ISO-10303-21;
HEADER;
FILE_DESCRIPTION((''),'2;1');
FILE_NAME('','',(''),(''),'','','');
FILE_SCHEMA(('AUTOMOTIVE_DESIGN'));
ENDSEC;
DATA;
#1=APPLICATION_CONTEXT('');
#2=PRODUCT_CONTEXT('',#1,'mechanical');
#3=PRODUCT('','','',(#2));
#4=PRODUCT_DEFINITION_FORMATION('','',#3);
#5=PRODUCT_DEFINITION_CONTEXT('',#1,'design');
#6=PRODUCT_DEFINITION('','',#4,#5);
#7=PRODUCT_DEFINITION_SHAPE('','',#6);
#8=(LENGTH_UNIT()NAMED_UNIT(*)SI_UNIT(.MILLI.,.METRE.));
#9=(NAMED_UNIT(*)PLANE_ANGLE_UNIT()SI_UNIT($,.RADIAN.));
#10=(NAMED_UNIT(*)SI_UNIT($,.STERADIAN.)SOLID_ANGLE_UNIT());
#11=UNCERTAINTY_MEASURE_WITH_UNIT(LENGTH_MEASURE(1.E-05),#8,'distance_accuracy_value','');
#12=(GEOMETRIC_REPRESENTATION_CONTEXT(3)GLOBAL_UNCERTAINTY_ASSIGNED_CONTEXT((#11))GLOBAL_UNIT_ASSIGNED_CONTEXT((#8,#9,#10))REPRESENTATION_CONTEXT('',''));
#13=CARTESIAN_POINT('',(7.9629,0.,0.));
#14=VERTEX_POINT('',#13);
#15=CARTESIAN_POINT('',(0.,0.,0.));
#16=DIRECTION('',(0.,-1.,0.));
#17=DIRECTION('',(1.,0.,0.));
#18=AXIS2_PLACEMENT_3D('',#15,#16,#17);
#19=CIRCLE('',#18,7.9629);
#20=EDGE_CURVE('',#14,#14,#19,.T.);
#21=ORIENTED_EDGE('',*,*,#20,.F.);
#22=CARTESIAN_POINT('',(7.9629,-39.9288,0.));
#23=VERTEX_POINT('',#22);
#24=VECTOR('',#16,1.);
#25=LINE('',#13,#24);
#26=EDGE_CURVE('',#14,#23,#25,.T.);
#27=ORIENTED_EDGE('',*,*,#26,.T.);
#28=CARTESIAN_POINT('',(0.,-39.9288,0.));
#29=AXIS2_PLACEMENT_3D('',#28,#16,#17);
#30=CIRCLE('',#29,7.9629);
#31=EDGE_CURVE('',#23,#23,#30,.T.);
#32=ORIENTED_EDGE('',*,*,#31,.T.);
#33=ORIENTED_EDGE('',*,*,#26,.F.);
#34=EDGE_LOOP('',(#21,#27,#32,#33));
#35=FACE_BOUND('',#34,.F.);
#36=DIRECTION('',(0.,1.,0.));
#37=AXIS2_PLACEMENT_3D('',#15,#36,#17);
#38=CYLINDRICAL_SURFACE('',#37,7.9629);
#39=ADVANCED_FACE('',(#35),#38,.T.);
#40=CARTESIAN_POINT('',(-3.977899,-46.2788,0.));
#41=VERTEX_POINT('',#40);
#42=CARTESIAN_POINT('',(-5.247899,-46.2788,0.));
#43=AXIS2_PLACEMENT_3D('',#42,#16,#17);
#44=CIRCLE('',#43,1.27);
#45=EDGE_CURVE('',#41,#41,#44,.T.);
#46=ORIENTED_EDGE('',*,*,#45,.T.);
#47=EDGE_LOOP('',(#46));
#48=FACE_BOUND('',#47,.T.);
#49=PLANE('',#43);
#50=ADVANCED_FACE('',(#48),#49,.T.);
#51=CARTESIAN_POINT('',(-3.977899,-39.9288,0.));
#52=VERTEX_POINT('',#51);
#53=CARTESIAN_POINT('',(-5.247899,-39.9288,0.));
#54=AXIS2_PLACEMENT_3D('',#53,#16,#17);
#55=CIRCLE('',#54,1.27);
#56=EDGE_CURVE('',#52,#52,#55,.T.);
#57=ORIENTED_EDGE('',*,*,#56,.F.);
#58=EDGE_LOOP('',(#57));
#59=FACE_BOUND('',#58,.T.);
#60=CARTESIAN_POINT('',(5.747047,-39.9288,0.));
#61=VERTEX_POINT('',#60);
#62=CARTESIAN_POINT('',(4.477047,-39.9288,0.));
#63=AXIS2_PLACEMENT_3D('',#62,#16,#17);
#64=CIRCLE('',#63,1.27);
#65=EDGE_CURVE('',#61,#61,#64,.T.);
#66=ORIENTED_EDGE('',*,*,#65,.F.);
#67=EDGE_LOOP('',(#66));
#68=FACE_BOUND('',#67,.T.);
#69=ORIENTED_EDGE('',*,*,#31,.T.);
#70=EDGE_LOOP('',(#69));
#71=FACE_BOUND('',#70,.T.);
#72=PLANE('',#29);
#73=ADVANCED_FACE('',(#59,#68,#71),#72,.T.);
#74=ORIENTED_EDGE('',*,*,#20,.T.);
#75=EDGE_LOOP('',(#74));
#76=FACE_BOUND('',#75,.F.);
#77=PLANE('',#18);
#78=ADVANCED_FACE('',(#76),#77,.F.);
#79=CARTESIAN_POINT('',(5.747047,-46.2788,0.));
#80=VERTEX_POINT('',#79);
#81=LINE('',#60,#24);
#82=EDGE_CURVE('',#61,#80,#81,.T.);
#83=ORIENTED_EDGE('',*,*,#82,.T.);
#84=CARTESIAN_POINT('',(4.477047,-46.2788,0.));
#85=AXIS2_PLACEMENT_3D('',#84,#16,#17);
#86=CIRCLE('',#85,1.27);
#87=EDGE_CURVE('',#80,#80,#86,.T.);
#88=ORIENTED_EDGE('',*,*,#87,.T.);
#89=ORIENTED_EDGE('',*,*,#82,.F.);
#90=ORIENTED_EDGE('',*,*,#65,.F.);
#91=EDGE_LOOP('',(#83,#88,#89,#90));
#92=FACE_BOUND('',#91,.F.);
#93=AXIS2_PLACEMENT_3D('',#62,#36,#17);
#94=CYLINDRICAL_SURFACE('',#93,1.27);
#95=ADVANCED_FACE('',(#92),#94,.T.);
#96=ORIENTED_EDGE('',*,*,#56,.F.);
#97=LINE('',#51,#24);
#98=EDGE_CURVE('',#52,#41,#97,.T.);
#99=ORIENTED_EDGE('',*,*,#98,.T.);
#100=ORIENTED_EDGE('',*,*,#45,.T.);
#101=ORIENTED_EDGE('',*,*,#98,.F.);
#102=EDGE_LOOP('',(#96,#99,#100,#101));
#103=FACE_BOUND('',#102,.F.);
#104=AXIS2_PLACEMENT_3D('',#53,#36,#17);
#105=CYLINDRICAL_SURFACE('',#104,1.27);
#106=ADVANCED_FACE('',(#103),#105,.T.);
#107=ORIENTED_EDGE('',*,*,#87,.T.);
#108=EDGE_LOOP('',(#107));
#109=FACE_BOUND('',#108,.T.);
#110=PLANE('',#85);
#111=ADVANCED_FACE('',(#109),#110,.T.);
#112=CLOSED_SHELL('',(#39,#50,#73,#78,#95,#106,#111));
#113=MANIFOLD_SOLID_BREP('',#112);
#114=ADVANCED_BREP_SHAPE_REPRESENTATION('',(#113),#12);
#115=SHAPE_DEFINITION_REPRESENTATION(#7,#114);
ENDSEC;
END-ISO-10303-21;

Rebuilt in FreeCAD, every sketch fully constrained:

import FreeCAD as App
import Part
import Sketcher
Q = App.Units.Quantity

doc = App.newDocument("Part")
body = doc.addObject("PartDesign::Body", "Body")

sketch1 = body.newObject("Sketcher::SketchObject", "Sketch")
sketch1.AttachmentSupport = (doc.getObject("XZ_Plane"), [""])
sketch1.MapMode = "FlatFace"
sketch1.addGeometry(Part.Circle(App.Vector(0, 0, 0), App.Vector(0, 0, 1), 8), False)
sketch1.addConstraint([
    Sketcher.Constraint("Coincident", 0, 3, -1, 1),
    Sketcher.Constraint("Diameter", 0, Q("0.627 in")),
])
pad1 = body.newObject("PartDesign::Pad", "Pad")
pad1.Profile = sketch1
pad1.Length = Q("1.572 in")

sketch2 = body.newObject("Sketcher::SketchObject", "Sketch001")
sketch2.AttachmentSupport = (doc.getObject("XZ_Plane"), [""])
sketch2.MapMode = "FlatFace"
sketch2.AttachmentOffset = App.Placement(App.Vector(0, 0, 1.572 * 25.4), App.Rotation())
sketch2.addGeometry([
    Part.Circle(App.Vector(-5.2, 0, 0), App.Vector(0, 0, 1), 1.3),
    Part.Circle(App.Vector(4.5, 0, 0), App.Vector(0, 0, 1), 1.3),
], False)
sketch2.addConstraint([
    Sketcher.Constraint("Equal", 0, 1),
    Sketcher.Constraint("PointOnObject", 0, 3, -1),
    Sketcher.Constraint("PointOnObject", 1, 3, -1),
    Sketcher.Constraint("Diameter", 0, Q("0.1 in")),
    Sketcher.Constraint("DistanceX", 0, 3, -1, 1, 5.247899),
    Sketcher.Constraint("DistanceX", -1, 1, 1, 3, 4.477047),
])
pad2 = body.newObject("PartDesign::Pad", "Pad001")
pad2.Profile = sketch2
pad2.Length = Q("0.25 in")

doc.recompute()
